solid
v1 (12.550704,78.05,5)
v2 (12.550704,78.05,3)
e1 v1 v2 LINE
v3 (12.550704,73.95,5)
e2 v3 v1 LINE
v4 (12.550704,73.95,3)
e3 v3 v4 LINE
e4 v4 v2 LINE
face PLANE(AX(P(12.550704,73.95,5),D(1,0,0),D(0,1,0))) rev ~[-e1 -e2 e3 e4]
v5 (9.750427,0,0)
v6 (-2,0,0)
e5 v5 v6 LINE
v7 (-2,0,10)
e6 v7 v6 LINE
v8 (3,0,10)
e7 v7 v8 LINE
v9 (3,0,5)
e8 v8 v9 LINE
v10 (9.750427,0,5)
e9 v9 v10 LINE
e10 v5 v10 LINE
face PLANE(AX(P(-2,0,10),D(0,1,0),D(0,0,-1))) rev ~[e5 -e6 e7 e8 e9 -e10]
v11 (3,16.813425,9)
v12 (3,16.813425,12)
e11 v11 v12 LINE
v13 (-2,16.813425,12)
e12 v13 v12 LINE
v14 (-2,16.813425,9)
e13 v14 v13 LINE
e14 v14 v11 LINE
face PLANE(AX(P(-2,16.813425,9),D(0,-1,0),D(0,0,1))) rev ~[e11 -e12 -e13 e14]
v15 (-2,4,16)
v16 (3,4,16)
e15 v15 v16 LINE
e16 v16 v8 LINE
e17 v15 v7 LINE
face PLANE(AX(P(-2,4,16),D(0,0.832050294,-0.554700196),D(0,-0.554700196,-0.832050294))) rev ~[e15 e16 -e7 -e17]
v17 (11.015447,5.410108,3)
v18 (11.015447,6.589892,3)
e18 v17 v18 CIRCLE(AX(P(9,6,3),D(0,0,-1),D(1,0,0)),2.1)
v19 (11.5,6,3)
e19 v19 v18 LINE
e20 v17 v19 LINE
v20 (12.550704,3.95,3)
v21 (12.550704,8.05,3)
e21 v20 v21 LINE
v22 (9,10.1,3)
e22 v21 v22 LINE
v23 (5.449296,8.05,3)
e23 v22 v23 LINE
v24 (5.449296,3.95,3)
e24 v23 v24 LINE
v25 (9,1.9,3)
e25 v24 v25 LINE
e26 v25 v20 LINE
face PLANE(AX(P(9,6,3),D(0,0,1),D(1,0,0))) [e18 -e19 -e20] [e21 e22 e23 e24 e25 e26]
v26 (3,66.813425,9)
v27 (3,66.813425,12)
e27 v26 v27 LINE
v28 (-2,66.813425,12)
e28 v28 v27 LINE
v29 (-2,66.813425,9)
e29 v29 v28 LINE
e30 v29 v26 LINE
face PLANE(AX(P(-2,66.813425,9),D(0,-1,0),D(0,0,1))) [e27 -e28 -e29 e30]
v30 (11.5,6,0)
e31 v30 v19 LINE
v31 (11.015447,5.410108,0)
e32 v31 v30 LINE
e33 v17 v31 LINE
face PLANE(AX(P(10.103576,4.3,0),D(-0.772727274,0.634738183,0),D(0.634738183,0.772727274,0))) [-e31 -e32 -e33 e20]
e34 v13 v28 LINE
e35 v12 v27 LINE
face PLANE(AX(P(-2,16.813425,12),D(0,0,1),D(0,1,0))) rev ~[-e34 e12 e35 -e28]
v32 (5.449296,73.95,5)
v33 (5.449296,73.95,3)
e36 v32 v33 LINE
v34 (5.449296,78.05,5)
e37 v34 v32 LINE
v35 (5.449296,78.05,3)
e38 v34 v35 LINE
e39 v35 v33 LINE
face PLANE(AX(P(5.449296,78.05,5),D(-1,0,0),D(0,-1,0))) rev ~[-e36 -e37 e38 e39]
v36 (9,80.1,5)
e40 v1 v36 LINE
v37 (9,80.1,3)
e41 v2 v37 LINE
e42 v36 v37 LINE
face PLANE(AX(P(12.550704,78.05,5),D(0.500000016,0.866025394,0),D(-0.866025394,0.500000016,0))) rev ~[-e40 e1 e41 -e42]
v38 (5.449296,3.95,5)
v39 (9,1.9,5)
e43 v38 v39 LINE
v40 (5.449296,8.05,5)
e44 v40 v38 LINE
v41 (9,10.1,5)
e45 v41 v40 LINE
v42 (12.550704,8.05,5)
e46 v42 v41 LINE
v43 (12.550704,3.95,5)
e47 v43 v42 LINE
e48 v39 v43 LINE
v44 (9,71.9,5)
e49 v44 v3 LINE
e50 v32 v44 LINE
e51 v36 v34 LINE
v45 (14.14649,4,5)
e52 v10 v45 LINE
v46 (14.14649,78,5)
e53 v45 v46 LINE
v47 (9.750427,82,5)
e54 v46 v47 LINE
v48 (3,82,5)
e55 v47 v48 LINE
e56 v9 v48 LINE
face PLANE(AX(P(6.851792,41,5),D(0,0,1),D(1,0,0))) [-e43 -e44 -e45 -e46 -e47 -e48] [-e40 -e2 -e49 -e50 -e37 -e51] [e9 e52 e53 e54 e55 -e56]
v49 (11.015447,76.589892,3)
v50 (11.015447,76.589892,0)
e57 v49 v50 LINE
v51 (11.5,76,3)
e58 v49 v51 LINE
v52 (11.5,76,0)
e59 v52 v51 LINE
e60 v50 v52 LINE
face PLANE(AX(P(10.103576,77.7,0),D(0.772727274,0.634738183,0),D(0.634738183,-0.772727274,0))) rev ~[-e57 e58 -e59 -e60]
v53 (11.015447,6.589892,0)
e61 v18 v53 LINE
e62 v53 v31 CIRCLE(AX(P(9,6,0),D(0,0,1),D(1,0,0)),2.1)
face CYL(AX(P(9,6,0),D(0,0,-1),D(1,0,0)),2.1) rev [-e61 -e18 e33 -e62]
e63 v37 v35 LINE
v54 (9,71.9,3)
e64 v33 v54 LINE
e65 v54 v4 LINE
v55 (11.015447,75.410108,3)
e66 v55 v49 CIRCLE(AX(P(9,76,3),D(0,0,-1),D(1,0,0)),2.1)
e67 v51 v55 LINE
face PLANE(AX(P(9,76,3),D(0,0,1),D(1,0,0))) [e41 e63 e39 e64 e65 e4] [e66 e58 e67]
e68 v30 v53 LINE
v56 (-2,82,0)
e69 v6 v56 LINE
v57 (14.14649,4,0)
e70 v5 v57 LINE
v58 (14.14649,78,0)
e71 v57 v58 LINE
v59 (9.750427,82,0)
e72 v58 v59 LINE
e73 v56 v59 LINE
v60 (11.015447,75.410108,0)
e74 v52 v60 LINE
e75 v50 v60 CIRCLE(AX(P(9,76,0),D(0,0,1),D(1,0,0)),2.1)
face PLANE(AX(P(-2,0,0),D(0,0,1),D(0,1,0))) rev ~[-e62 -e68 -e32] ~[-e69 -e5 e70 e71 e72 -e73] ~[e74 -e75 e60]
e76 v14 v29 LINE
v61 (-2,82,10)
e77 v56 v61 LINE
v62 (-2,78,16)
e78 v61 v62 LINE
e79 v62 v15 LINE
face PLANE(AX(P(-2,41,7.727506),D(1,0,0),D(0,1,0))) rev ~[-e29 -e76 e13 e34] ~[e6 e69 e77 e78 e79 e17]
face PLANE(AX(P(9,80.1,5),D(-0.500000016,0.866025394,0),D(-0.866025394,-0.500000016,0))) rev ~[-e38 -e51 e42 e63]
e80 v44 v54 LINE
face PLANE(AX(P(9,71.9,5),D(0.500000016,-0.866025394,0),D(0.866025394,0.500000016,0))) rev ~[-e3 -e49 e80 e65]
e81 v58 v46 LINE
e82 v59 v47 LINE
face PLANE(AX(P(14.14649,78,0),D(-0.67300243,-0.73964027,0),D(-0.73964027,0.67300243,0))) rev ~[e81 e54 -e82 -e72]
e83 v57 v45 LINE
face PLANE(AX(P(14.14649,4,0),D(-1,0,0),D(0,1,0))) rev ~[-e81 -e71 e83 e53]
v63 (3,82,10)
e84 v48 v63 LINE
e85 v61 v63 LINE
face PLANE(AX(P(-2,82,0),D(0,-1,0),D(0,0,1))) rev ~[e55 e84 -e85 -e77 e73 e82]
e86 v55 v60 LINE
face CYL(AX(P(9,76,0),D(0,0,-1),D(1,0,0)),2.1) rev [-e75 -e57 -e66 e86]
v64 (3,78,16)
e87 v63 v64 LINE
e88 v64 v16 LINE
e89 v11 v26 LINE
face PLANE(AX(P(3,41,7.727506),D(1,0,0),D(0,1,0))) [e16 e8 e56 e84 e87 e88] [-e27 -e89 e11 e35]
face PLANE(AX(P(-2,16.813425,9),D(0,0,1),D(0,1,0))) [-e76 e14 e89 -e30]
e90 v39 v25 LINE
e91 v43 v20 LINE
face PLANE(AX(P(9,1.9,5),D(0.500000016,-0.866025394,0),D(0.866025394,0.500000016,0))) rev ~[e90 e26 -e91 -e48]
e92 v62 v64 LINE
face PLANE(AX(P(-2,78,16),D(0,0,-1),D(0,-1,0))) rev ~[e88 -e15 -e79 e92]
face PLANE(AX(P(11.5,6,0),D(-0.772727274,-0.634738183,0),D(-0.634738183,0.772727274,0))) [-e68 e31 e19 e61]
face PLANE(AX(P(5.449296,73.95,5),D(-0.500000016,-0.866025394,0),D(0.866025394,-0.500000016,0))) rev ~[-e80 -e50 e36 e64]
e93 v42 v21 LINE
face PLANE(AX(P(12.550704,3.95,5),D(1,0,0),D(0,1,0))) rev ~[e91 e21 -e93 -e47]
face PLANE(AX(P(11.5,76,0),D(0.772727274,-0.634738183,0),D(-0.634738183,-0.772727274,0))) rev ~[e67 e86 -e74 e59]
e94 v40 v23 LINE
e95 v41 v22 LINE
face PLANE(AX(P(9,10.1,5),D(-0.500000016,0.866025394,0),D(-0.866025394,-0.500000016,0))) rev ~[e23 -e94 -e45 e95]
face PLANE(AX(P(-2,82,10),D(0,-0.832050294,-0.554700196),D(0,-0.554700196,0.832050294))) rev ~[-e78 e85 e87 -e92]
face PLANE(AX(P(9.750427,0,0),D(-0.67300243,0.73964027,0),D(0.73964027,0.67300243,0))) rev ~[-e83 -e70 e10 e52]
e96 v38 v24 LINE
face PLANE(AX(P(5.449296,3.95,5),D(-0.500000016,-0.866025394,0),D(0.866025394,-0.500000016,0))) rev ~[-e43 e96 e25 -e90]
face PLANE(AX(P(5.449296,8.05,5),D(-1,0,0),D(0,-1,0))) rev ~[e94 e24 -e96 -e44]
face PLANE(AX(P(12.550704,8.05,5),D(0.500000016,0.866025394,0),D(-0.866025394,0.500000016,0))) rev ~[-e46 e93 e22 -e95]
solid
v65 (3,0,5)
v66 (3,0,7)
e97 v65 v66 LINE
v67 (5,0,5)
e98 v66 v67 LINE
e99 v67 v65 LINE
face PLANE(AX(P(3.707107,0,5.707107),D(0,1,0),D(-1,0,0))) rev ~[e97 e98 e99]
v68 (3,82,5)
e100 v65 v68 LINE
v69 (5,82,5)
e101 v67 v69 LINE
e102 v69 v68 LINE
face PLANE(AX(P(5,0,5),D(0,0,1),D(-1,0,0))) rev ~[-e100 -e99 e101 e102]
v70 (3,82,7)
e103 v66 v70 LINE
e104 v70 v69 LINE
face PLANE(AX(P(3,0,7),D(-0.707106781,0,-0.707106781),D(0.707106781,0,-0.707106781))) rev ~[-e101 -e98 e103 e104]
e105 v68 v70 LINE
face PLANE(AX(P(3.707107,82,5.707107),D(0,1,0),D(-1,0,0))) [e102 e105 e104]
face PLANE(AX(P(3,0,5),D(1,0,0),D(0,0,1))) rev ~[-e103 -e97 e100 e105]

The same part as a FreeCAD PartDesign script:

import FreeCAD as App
import Part
import Sketcher
from FreeCAD import Vector
Q = App.Units.Quantity

doc = App.newDocument("Part")
body = doc.addObject("PartDesign::Body", "Body")

sketch1 = body.newObject("Sketcher::SketchObject", "Sketch")
sketch1.AttachmentSupport = (doc.getObject("XZ_Plane"), [""])
sketch1.MapMode = "FlatFace"
sketch1.addGeometry([
    Part.LineSegment(Vector(3, 7, 0), Vector(3, 5, 0)),
    Part.LineSegment(Vector(3, 5, 0), Vector(5, 5, 0)),
    Part.LineSegment(Vector(5, 5, 0), Vector(3, 7, 0)),
], False)
sketch1.addConstraint([
    Sketcher.Constraint("Coincident", 0, 2, 1, 1),
    Sketcher.Constraint("Coincident", 1, 2, 2, 1),
    Sketcher.Constraint("Coincident", 2, 2, 0, 1),
    Sketcher.Constraint("Vertical", 0),
    Sketcher.Constraint("Horizontal", 1),
    Sketcher.Constraint("Equal", 1, 0),
    Sketcher.Constraint("DistanceX", 1, 1, 1, 2, Q("2 mm")),
    Sketcher.Constraint("DistanceX", -1, 1, 0, 2, Q("3 mm")),
    Sketcher.Constraint("DistanceY", -1, 1, 0, 2, Q("5 mm")),
])
pad1 = body.newObject("PartDesign::Pad", "Pad")
pad1.Profile = sketch1
pad1.Length = 82
pad1.Reversed = True
body2 = doc.addObject("PartDesign::Body", "Body001")

sketch2 = body2.newObject("Sketcher::SketchObject", "Sketch001")
sketch2.AttachmentSupport = (doc.getObject("YZ_Plane001"), [""])
sketch2.MapMode = "FlatFace"
sketch2.AttachmentOffset = App.Placement(Vector(0, 0, -2), App.Rotation())
sketch2.addGeometry([
    Part.LineSegment(Vector(0, 0, 0), Vector(82, 0, 0)),
    Part.LineSegment(Vector(82, 0, 0), Vector(82, 10, 0)),
    Part.LineSegment(Vector(82, 10, 0), Vector(78, 16, 0)),
    Part.LineSegment(Vector(78, 16, 0), Vector(4, 16, 0)),
    Part.LineSegment(Vector(4, 16, 0), Vector(0, 10, 0)),
    Part.LineSegment(Vector(0, 10, 0), Vector(0, 0, 0)),
    Part.LineSegment(Vector(66.813425, 9, 0), Vector(16.813425, 9, 0)),
    Part.LineSegment(Vector(16.813425, 9, 0), Vector(16.813425, 12, 0)),
    Part.LineSegment(Vector(16.813425, 12, 0), Vector(66.813425, 12, 0)),
    Part.LineSegment(Vector(66.813425, 12, 0), Vector(66.813425, 9, 0)),
], False)
sketch2.addConstraint([
    Sketcher.Constraint("Coincident", 0, 2, 1, 1),
    Sketcher.Constraint("Coincident", 1, 2, 2, 1),
    Sketcher.Constraint("Coincident", 2, 2, 3, 1),
    Sketcher.Constraint("Coincident", 3, 2, 4, 1),
    Sketcher.Constraint("Coincident", 4, 2, 5, 1),
    Sketcher.Constraint("Coincident", 5, 2, 0, 1),
    Sketcher.Constraint("Coincident", 6, 2, 7, 1),
    Sketcher.Constraint("Coincident", 7, 2, 8, 1),
    Sketcher.Constraint("Coincident", 8, 2, 9, 1),
    Sketcher.Constraint("Coincident", 9, 2, 6, 1),
    Sketcher.Constraint("Horizontal", 0),
    Sketcher.Constraint("Vertical", 1),
    Sketcher.Constraint("Horizontal", 3),
    Sketcher.Constraint("Vertical", 5),
    Sketcher.Constraint("Horizontal", 6),
    Sketcher.Constraint("Vertical", 7),
    Sketcher.Constraint("Horizontal", 8),
    Sketcher.Constraint("Vertical", 9),
    Sketcher.Constraint("Coincident", 5, 2, -1, 1),
    Sketcher.Constraint("Horizontal", 1, 2, 4, 2),
    Sketcher.Constraint("Equal", 2, 4),
    Sketcher.Constraint("DistanceX", 0, 1, 0, 2, Q("82 mm")),
    Sketcher.Constraint("DistanceX", 3, 2, 3, 1, Q("74 mm")),
    Sketcher.Constraint("DistanceX", 6, 2, 6, 1, Q("50 mm")),
    Sketcher.Constraint("DistanceY", 1, 1, 1, 2, Q("10 mm")),
    Sketcher.Constraint("DistanceY", 7, 1, 7, 2, Q("3 mm")),
    Sketcher.Constraint("DistanceY", -1, 1, 2, 2, Q("16 mm")),
    Sketcher.Constraint("DistanceY", -1, 1, 6, 2, Q("9 mm")),
    Sketcher.Constraint("DistanceX", -1, 1, 6, 2, Q("16.813425 mm")),
])
pad2 = body2.newObject("PartDesign::Pad", "Pad001")
pad2.Profile = sketch2
pad2.Length = 5
body3 = doc.addObject("PartDesign::Body", "Body002")

sketch3 = body3.newObject("Sketcher::SketchObject", "Sketch002")
sketch3.AttachmentSupport = (doc.getObject("XY_Plane002"), [""])
sketch3.MapMode = "FlatFace"
sketch3.addGeometry([
    Part.LineSegment(Vector(0, 82, 0), Vector(0, 0, 0)),
    Part.LineSegment(Vector(0, 0, 0), Vector(9.750427, 0, 0)),
    Part.LineSegment(Vector(9.750427, 0, 0), Vector(14.14649, 4, 0)),
    Part.LineSegment(Vector(14.14649, 4, 0), Vector(14.14649, 78, 0)),
    Part.LineSegment(Vector(14.14649, 78, 0), Vector(9.750427, 82, 0)),
    Part.LineSegment(Vector(9.750427, 82, 0), Vector(0, 82, 0)),
    Part.Circle(Vector(9, 6, 0), Vector(0, 0, 1), 2.1),
    Part.Circle(Vector(9, 76, 0), Vector(0, 0, 1), 2.1),
], False)
sketch3.addConstraint([
    Sketcher.Constraint("Coincident", 0, 2, 1, 1),
    Sketcher.Constraint("Coincident", 1, 2, 2, 1),
    Sketcher.Constraint("Coincident", 2, 2, 3, 1),
    Sketcher.Constraint("Coincident", 3, 2, 4, 1),
    Sketcher.Constraint("Coincident", 4, 2, 5, 1),
    Sketcher.Constraint("Coincident", 5, 2, 0, 1),
    Sketcher.Constraint("Vertical", 0),
    Sketcher.Constraint("Horizontal", 1),
    Sketcher.Constraint("Vertical", 3),
    Sketcher.Constraint("Horizontal", 5),
    Sketcher.Constraint("Coincident", 0, 2, -1, 1),
    Sketcher.Constraint("Equal", 6, 7),
    Sketcher.Constraint("Vertical", 6, 3, 7, 3),
    Sketcher.Constraint("Vertical", 1, 2, 4, 2),
    Sketcher.Constraint("Equal", 2, 4),
    Sketcher.Constraint("Diameter", 6, Q("4.2 mm")),
    Sketcher.Constraint("DistanceY", 0, 2, 0, 1, Q("82 mm")),
    Sketcher.Constraint("DistanceY", 3, 1, 3, 2, Q("74 mm")),
    Sketcher.Constraint("DistanceX", -1, 1, 6, 3, Q("9 mm")),
    Sketcher.Constraint("DistanceY", -1, 1, 6, 3, Q("6 mm")),
    Sketcher.Constraint("DistanceY", -1, 1, 7, 3, Q("76 mm")),
    Sketcher.Constraint("DistanceX", 1, 1, 1, 2, Q("9.750427 mm")),
    Sketcher.Constraint("DistanceX", -1, 1, 2, 2, Q("14.14649 mm")),
])
pad3 = body3.newObject("PartDesign::Pad", "Pad002")
pad3.Profile = sketch3
pad3.Length = 5
doc.recompute()

boolean = body3.newObject("PartDesign::Boolean", "Boolean")
boolean.Type = "Fuse"
boolean.addObjects([body2])

sketch4 = body3.newObject("Sketcher::SketchObject", "Sketch003")
sketch4.AttachmentSupport = (doc.getObject("XY_Plane002"), [""])
sketch4.MapMode = "FlatFace"
sketch4.addGeometry([
    Part.LineSegment(Vector(11.5, 6, 0), Vector(10.103576, 4.3, 0)),
    Part.LineSegment(Vector(10.103576, 4.3, 0), Vector(10.103576, 7.7, 0)),
    Part.LineSegment(Vector(10.103576, 7.7, 0), Vector(11.5, 6, 0)),
    Part.LineSegment(Vector(10.103576, 74.3, 0), Vector(10.103576, 77.7, 0)),
    Part.LineSegment(Vector(10.103576, 77.7, 0), Vector(11.5, 76, 0)),
    Part.LineSegment(Vector(11.5, 76, 0), Vector(10.103576, 74.3, 0)),
], False)
sketch4.addConstraint([
    Sketcher.Constraint("Coincident", 0, 2, 1, 1),
    Sketcher.Constraint("Coincident", 1, 2, 2, 1),
    Sketcher.Constraint("Coincident", 2, 2, 0, 1),
    Sketcher.Constraint("Coincident", 3, 2, 4, 1),
    Sketcher.Constraint("Coincident", 4, 2, 5, 1),
    Sketcher.Constraint("Coincident", 5, 2, 3, 1),
    Sketcher.Constraint("Vertical", 1),
    Sketcher.Constraint("Vertical", 3),
    Sketcher.Constraint("Parallel", 2, 4),
    Sketcher.Constraint("Parallel", 0, 5),
    Sketcher.Constraint("Vertical", 1, 2, 3, 2),
    Sketcher.Constraint("Vertical", 2, 2, 4, 2),
    Sketcher.Constraint("Equal", 0, 2),
    Sketcher.Constraint("DistanceY", 1, 1, 1, 2, Q("3.4 mm")),
    Sketcher.Constraint("DistanceY", -1, 1, 2, 2, Q("6 mm")),
    Sketcher.Constraint("DistanceY", -1, 1, 4, 2, Q("76 mm")),
    Sketcher.Constraint("Distance", 0, Q("2.2 mm")),
    Sketcher.Constraint("DistanceX", -1, 1, 2, 2, Q("11.5 mm")),
])
pocket1 = body3.newObject("PartDesign::Pocket", "Pocket")
pocket1.Profile = sketch4
pocket1.Length = 6
pocket1.Reversed = True

sketch5 = body3.newObject("Sketcher::SketchObject", "Sketch004")
sketch5.AttachmentSupport = (doc.getObject("XY_Plane002"), [""])
sketch5.MapMode = "FlatFace"
sketch5.AttachmentOffset = App.Placement(Vector(0, 0, 5), App.Rotation())
sketch5.addGeometry([
    Part.LineSegment(Vector(9, 71.9, 0), Vector(12.550704, 73.95, 0)),
    Part.LineSegment(Vector(12.550704, 73.95, 0), Vector(12.550704, 78.05, 0)),
    Part.LineSegment(Vector(12.550704, 78.05, 0), Vector(9, 80.1, 0)),
    Part.LineSegment(Vector(9, 80.1, 0), Vector(5.449296, 78.05, 0)),
    Part.LineSegment(Vector(5.449296, 78.05, 0), Vector(5.449296, 73.95, 0)),
    Part.LineSegment(Vector(5.449296, 73.95, 0), Vector(9, 71.9, 0)),
    Part.LineSegment(Vector(9, 10.1, 0), Vector(5.449296, 8.05, 0)),
    Part.LineSegment(Vector(5.449296, 8.05, 0), Vector(5.449296, 3.95, 0)),
    Part.LineSegment(Vector(5.449296, 3.95, 0), Vector(9, 1.9, 0)),
    Part.LineSegment(Vector(9, 1.9, 0), Vector(12.550704, 3.95, 0)),
    Part.LineSegment(Vector(12.550704, 3.95, 0), Vector(12.550704, 8.05, 0)),
    Part.LineSegment(Vector(12.550704, 8.05, 0), Vector(9, 10.1, 0)),
], False)
sketch5.addConstraint([
    Sketcher.Constraint("Coincident", 0, 2, 1, 1),
    Sketcher.Constraint("Coincident", 1, 2, 2, 1),
    Sketcher.Constraint("Coincident", 2, 2, 3, 1),
    Sketcher.Constraint("Coincident", 3, 2, 4, 1),
    Sketcher.Constraint("Coincident", 4, 2, 5, 1),
    Sketcher.Constraint("Coincident", 5, 2, 0, 1),
    Sketcher.Constraint("Coincident", 6, 2, 7, 1),
    Sketcher.Constraint("Coincident", 7, 2, 8, 1),
    Sketcher.Constraint("Coincident", 8, 2, 9, 1),
    Sketcher.Constraint("Coincident", 9, 2, 10, 1),
    Sketcher.Constraint("Coincident", 10, 2, 11, 1),
    Sketcher.Constraint("Coincident", 11, 2, 6, 1),
    Sketcher.Constraint("Vertical", 1),
    Sketcher.Constraint("Vertical", 4),
    Sketcher.Constraint("Vertical", 7),
    Sketcher.Constraint("Vertical", 10),
    Sketcher.Constraint("Parallel", 0, 3),
    Sketcher.Constraint("Parallel", 2, 5),
    Sketcher.Constraint("Parallel", 3, 6),
    Sketcher.Constraint("Parallel", 5, 8),
    Sketcher.Constraint("Parallel", 6, 9),
    Sketcher.Constraint("Parallel", 8, 11),
    Sketcher.Constraint("Horizontal", 1, 2, 3, 2),
    Sketcher.Constraint("Horizontal", 0, 2, 4, 2),
    Sketcher.Constraint("Horizontal", 7, 2, 9, 2),
    Sketcher.Constraint("Horizontal", 6, 2, 10, 2),
    Sketcher.Constraint("Vertical", 2, 2, 5, 2),
    Sketcher.Constraint("Vertical", 4, 2, 6, 2),
    Sketcher.Constraint("Vertical", 5, 2, 8, 2),
    Sketcher.Constraint("Equal", 4, 7),
    Sketcher.Constraint("Angle", 0, Q("30.000001 deg")),
    Sketcher.Constraint("DistanceY", 1, 1, 1, 2, Q("4.1 mm")),
    Sketcher.Constraint("DistanceX", -1, 1, 2, 2, Q("9 mm")),
    Sketcher.Constraint("DistanceY", 6, 2, 3, 2, Q("70 mm")),
    Sketcher.Constraint("Distance", 0, Q("4.1 mm")),
    Sketcher.Constraint("DistanceY", -1, 1, 2, 2, Q("80.1 mm")),
])
pocket2 = body3.newObject("PartDesign::Pocket", "Pocket001")
pocket2.Profile = sketch5
pocket2.Length = 2

doc.recompute()
